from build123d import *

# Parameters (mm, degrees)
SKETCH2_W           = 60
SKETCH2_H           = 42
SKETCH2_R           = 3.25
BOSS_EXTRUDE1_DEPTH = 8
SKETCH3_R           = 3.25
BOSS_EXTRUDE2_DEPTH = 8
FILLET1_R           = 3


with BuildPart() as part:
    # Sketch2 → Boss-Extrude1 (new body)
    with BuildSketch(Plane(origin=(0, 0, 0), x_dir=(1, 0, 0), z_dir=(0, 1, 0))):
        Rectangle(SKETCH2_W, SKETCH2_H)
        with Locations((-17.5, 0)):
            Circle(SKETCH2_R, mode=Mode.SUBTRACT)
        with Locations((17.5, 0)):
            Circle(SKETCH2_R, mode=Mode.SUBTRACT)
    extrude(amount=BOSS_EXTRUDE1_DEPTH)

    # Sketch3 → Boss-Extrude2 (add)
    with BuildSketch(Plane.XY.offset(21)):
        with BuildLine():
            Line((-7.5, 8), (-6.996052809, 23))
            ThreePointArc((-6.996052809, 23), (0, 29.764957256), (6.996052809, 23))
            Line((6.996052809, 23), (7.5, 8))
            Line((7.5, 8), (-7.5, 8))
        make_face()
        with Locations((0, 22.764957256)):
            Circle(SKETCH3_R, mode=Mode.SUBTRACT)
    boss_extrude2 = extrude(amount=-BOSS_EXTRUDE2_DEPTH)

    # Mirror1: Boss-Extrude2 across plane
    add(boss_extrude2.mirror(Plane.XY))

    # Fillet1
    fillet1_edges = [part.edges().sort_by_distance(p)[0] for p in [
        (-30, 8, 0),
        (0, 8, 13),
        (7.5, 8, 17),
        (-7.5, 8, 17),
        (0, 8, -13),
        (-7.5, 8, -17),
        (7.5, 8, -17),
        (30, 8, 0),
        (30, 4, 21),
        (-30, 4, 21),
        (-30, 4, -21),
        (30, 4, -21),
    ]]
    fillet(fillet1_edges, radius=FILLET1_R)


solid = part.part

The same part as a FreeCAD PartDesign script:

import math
import FreeCAD as App
import Part
import Sketcher


def edges_at(feature, points):
    """Names of the edges that pass closest to the given points."""
    edges = feature.Shape.Edges
    near = lambda p: min(range(len(edges)), key=lambda i: edges[i].distToShape(Part.Vertex(*p))[0])
    return sorted({f"Edge{near(p) + 1}" for p in points})


def add_polygon(sketch, points):
    """Adds a closed chain of lines whose ends are joined by coincident constraints."""
    first, n = sketch.GeometryCount, len(points)
    for a, b in zip(points, points[1:] + points[:1]):
        sketch.addGeometry(Part.LineSegment(App.Vector(*a, 0), App.Vector(*b, 0)), False)
    for i in range(n):
        sketch.addConstraint(Sketcher.Constraint("Coincident", first + i, 2, first + (i + 1) % n, 1))

doc = App.newDocument("Part")
params = doc.addObject("Spreadsheet::Sheet", "Params")
for row, (alias, value) in enumerate([
    ("sketch1_diameter", "6.5 mm"),
    ("sketch1_width", "60 mm"),
    ("sketch1_height", "42 mm"),
    ("pad1_length", "8 mm"),
    ("sketch2_radius", "7 mm"),
    ("sketch2_diameter", "6.5 mm"),
    ("sketch2_width", "15 mm"),
    ("pad2_length", "8 mm"),
    ("fillet_radius", "3 mm"),
], start=1):
    params.set(f"A{row}", alias)
    params.set(f"B{row}", "=" + value)
    params.setAlias(f"B{row}", alias)

body = doc.addObject("PartDesign::Body", "Body")

sketch1 = body.newObject("Sketcher::SketchObject", "Sketch")
sketch1.AttachmentSupport = (doc.getObject("XZ_Plane"), [""])
sketch1.MapMode = "FlatFace"
add_polygon(sketch1, [(-30, -21), (-30, 21), (30, 21), (30, -21)])
sketch1.addGeometry(Part.Circle(App.Vector(-17.5, 0, 0), App.Vector(0, 0, 1), 3.2), False)
sketch1.addGeometry(Part.Circle(App.Vector(17.5, 0, 0), App.Vector(0, 0, 1), 3.2), False)
sketch1.addConstraint([
    Sketcher.Constraint("Vertical", 0),
    Sketcher.Constraint("Horizontal", 1),
    Sketcher.Constraint("Vertical", 2),
    Sketcher.Constraint("Horizontal", 3),
    Sketcher.Constraint("Equal", 4, 5),
    Sketcher.Constraint("Symmetric", 4, 3, 5, 3, -1, 1),
    Sketcher.Constraint("Symmetric", 0, 2, 2, 2, -1, 1),
    Sketcher.Constraint("PointOnObject", 4, 3, -1),
    Sketcher.Constraint("Diameter", 4, 6.5),
    Sketcher.Constraint("DistanceX", 1, 1, 1, 2, 60.0),
    Sketcher.Constraint("DistanceY", 0, 1, 0, 2, 42.0),
    Sketcher.Constraint("DistanceX", 4, 3, 5, 3, 35.0),
])
sketch1.setExpression("Constraints[12]", "Params.sketch1_diameter")
sketch1.setExpression("Constraints[13]", "Params.sketch1_width")
sketch1.setExpression("Constraints[14]", "Params.sketch1_height")
pad1 = body.newObject("PartDesign::Pad", "Pad")
pad1.Profile = sketch1
pad1.setExpression("Length", "Params.pad1_length")
pad1.Reversed = True

sketch2 = body.newObject("Sketcher::SketchObject", "Sketch001")
sketch2.AttachmentSupport = (doc.getObject("XY_Plane"), [""])
sketch2.MapMode = "FlatFace"
sketch2.AttachmentOffset = App.Placement(App.Vector(0, 0, 21), App.Rotation())
sketch2.addGeometry([
    Part.LineSegment(App.Vector(-7, 23, 0), App.Vector(-7.5, 8, 0)),
    Part.LineSegment(App.Vector(-7.5, 8, 0), App.Vector(7.5, 8, 0)),
    Part.LineSegment(App.Vector(7.5, 8, 0), App.Vector(7, 23, 0)),
    Part.ArcOfCircle(Part.Circle(App.Vector(0, 22.8, 0), App.Vector(0, 0, 1), 7), math.radians(2), math.radians(178)),
    Part.Circle(App.Vector(0, 22.8, 0), App.Vector(0, 0, 1), 3.2),
], False)
sketch2.addConstraint([
    Sketcher.Constraint("Coincident", 0, 2, 1, 1),
    Sketcher.Constraint("Coincident", 1, 2, 2, 1),
    Sketcher.Constraint("Tangent", 2, 2, 3, 1),
    Sketcher.Constraint("Tangent", 3, 2, 0, 1),
    Sketcher.Constraint("Horizontal", 1),
    Sketcher.Constraint("Coincident", 4, 3, 3, 3),
    Sketcher.Constraint("Symmetric", 2, 2, 3, 2, -2),
    Sketcher.Constraint("Radius", 3, 7.0),
    Sketcher.Constraint("Diameter", 4, 6.5),
    Sketcher.Constraint("DistanceX", 1, 1, 1, 2, 15.0),
    Sketcher.Constraint("DistanceY", -1, 1, 0, 2, 8.0),
    Sketcher.Constraint("DistanceY", -1, 1, 2, 2, 23.0),
])
sketch2.setExpression("Constraints[7]", "Params.sketch2_radius")
sketch2.setExpression("Constraints[8]", "Params.sketch2_diameter")
sketch2.setExpression("Constraints[9]", "Params.sketch2_width")
pad2 = body.newObject("PartDesign::Pad", "Pad001")
pad2.Profile = sketch2
pad2.setExpression("Length", "Params.pad2_length")
pad2.Reversed = True
doc.recompute()

mirrored = body.newObject("PartDesign::Mirrored", "Mirrored")
mirrored.Originals = [pad2]
mirrored.MirrorPlane = (doc.getObject("XY_Plane"), [""])
body.Tip = mirrored
doc.recompute()

fillet = body.newObject("PartDesign::Fillet", "Fillet")
fillet.Base = (mirrored, edges_at(mirrored, [
    (-30, 8, 0),
    (0, 8, 13),
    (7.5, 8, 17),
    (-7.5, 8, 17),
    (0, 8, -13),
    (-7.5, 8, -17),
    (7.5, 8, -17),
    (30, 8, 0),
    (30, 4, 21),
    (-30, 4, 21),
    (-30, 4, -21),
    (30, 4, -21),
]))
fillet.setExpression("Radius", "Params.fillet_radius")

doc.recompute()
